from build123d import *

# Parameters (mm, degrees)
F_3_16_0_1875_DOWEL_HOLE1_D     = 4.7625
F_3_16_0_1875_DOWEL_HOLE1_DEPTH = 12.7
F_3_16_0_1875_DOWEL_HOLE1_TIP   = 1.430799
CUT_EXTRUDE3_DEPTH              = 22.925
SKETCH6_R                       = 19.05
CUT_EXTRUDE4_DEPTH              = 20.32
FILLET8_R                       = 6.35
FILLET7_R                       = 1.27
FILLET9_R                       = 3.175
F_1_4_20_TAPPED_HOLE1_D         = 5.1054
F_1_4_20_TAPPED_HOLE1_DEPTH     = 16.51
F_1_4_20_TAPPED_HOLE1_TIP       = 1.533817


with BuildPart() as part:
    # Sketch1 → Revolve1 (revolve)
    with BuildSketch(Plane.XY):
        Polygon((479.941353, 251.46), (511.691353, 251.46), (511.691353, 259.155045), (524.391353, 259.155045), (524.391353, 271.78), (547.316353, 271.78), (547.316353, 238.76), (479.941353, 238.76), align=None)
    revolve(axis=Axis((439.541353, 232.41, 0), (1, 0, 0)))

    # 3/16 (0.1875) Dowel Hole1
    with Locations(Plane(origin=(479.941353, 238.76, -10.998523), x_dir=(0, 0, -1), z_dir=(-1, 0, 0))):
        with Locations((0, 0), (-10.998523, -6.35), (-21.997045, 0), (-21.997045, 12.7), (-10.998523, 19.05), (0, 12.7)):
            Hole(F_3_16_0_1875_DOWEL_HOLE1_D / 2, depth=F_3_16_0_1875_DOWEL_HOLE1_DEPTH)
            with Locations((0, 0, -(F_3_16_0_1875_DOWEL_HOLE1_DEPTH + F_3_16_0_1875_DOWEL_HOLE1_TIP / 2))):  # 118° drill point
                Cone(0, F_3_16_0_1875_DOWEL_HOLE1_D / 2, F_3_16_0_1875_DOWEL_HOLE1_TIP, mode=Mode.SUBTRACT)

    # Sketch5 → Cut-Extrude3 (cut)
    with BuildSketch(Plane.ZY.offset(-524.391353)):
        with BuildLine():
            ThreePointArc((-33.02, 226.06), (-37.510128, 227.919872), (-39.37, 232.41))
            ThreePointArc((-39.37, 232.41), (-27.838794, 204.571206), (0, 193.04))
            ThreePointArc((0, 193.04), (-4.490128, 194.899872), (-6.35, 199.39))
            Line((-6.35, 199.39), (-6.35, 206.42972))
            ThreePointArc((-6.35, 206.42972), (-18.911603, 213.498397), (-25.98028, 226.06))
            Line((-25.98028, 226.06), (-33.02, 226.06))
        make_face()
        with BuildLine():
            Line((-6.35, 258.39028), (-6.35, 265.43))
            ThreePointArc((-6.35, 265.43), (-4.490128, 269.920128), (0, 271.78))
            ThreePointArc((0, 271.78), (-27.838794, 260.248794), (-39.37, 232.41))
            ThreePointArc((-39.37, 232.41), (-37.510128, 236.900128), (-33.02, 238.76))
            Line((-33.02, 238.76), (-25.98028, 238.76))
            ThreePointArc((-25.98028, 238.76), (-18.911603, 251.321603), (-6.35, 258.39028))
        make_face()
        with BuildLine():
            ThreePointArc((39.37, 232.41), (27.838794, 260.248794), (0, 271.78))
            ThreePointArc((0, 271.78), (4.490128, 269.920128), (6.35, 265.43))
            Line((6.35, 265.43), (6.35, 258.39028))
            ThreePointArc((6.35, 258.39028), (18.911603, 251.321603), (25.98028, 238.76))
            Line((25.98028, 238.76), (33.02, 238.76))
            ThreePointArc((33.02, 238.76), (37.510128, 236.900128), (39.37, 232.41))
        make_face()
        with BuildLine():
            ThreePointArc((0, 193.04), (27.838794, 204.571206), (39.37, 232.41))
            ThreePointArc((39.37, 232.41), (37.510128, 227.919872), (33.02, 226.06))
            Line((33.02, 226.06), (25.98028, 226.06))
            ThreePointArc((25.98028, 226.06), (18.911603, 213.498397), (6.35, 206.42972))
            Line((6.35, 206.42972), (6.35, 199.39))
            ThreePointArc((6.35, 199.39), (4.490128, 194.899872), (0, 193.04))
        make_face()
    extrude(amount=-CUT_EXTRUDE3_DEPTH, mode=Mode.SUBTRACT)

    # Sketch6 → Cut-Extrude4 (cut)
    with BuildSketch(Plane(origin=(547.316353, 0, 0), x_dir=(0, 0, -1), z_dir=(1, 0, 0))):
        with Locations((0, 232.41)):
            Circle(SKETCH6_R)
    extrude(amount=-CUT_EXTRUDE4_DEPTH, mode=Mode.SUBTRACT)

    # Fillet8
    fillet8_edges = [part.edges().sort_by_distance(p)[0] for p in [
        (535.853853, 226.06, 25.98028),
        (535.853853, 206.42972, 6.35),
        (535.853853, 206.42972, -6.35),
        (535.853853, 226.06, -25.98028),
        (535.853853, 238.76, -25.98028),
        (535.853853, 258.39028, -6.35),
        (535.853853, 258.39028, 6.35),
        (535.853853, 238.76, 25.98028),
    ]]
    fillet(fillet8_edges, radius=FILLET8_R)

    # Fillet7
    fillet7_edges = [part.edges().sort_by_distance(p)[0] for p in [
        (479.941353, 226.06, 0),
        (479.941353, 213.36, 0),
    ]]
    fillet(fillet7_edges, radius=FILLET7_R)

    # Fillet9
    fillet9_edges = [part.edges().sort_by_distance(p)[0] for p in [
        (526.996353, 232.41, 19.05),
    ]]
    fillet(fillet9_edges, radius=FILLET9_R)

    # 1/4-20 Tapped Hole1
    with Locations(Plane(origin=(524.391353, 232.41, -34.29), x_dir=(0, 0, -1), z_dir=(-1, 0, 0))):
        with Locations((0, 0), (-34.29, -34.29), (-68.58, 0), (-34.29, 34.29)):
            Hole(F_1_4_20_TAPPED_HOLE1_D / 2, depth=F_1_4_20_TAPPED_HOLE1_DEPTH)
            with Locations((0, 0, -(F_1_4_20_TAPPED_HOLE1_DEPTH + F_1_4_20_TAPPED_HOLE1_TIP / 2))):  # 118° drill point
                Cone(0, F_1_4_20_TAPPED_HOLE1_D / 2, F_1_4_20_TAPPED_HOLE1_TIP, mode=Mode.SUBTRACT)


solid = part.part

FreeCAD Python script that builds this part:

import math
import FreeCAD as App
import Part
import Sketcher
from FreeCAD import Vector
Q = App.Units.Quantity


def edges_at(feature, points):
    """Names of the edges that pass closest to the given points."""
    edges = feature.Shape.Edges
    near = lambda p: min(range(len(edges)), key=lambda i: edges[i].distToShape(Part.Vertex(*p))[0])
    return sorted({f"Edge{near(p) + 1}" for p in points})


def add_polygon(sketch, points):
    """Adds a closed chain of lines whose ends are joined by coincident constraints."""
    first, n = sketch.GeometryCount, len(points)
    for a, b in zip(points, points[1:] + points[:1]):
        sketch.addGeometry(Part.LineSegment(App.Vector(*a, 0), App.Vector(*b, 0)), False)
    for i in range(n):
        sketch.addConstraint(Sketcher.Constraint("Coincident", first + i, 2, first + (i + 1) % n, 1))

doc = App.newDocument("Part")
body = doc.addObject("PartDesign::Body", "Body")

# Sketch on XY plane
sketch1 = body.newObject("Sketcher::SketchObject", "Sketch")
sketch1.AttachmentSupport = (doc.getObject("XY_Plane"), [""])
sketch1.MapMode = "FlatFace"
add_polygon(sketch1, [(512, 251), (480, 251), (480, 239), (547, 239), (547, 272), (524, 272), (524, 259), (512, 259)])  # lines 0-7
sketch1.addGeometry(Part.LineSegment(Vector(480, 232, 0), Vector(547, 232, 0)), True)  # axis
sketch1.addConstraint([
    Sketcher.Constraint("Horizontal", 0),
    Sketcher.Constraint("Vertical", 1),
    Sketcher.Constraint("Horizontal", 2),
    Sketcher.Constraint("Vertical", 3),
    Sketcher.Constraint("Horizontal", 4),
    Sketcher.Constraint("Vertical", 5),
    Sketcher.Constraint("Horizontal", 6),
    Sketcher.Constraint("Vertical", 7),
    Sketcher.Constraint("Horizontal", 8),
    Sketcher.Constraint("Vertical", 1, 2, 8, 1),
    Sketcher.Constraint("Vertical", 3, 2, 8, 2),
    Sketcher.Constraint("Equal", 6, 1),
    Sketcher.Constraint("DistanceX", 6, 2, 6, 1, Q("0.5 in")),
    Sketcher.Constraint("DistanceY", 3, 1, 3, 2, Q("1.3 in")),
    Sketcher.Constraint("DistanceX", 0, 2, 0, 1, Q("1.25 in")),
    Sketcher.Constraint("DistanceY", -1, 1, 0, 2, Q("9.9 in")),
    Sketcher.Constraint("DistanceY", -1, 1, 8, 1, Q("9.15 in")),
    Sketcher.Constraint("DistanceX", 2, 1, 2, 2, Q("67.375 mm")),
    Sketcher.Constraint("DistanceY", 5, 2, 5, 1, Q("12.624955 mm")),
    Sketcher.Constraint("DistanceX", -1, 1, 0, 2, Q("479.941353 mm")),
])
revolution = body.newObject("PartDesign::Revolution", "Revolution")
revolution.Profile = sketch1
revolution.ReferenceAxis = (sketch1, ["Axis0"])
revolution.Angle = 360

# Sketch on YZ plane
sketch2 = body.newObject("Sketcher::SketchObject", "Sketch001")
sketch2.AttachmentSupport = (doc.getObject("YZ_Plane"), [""])
sketch2.MapMode = "FlatFace"
sketch2.AttachmentOffset = App.Placement(Vector(0, 0, 479.941353), App.Rotation())
sketch2.addGeometry([
    Part.Circle(Vector(238.8, -11, 0), Vector(0, 0, 1), 2.4),  # 0
    Part.Circle(Vector(245.1, 0, 0), Vector(0, 0, 1), 2.4),  # 1
    Part.Circle(Vector(238.8, 11, 0), Vector(0, 0, 1), 2.4),  # 2
    Part.Circle(Vector(226.1, 11, 0), Vector(0, 0, 1), 2.4),  # 3
    Part.Circle(Vector(219.7, 0, 0), Vector(0, 0, 1), 2.4),  # 4
    Part.Circle(Vector(226.1, -11, 0), Vector(0, 0, 1), 2.4),  # 5
], False)
sketch2.addConstraint([
    Sketcher.Constraint("Equal", 0, 1),
    Sketcher.Constraint("Equal", 1, 2),
    Sketcher.Constraint("Equal", 2, 3),
    Sketcher.Constraint("Equal", 3, 4),
    Sketcher.Constraint("Equal", 4, 5),
    Sketcher.Constraint("Symmetric", 0, 3, 2, 3, -1),
    Sketcher.Constraint("Symmetric", 3, 3, 5, 3, -1),
    Sketcher.Constraint("PointOnObject", 1, 3, -1),
    Sketcher.Constraint("PointOnObject", 4, 3, -1),
    Sketcher.Constraint("Horizontal", 2, 3, 3, 3),
    Sketcher.Constraint("Diameter", 0, Q("0.1875 in")),
    Sketcher.Constraint("DistanceX", 4, 3, 1, 3, Q("1 in")),
    Sketcher.Constraint("DistanceX", -1, 1, 0, 3, Q("9.4 in")),
    Sketcher.Constraint("DistanceX", -1, 1, 3, 3, Q("8.9 in")),
    Sketcher.Constraint("DistanceX", -1, 1, 1, 3, Q("9.65 in")),
    Sketcher.Constraint("DistanceY", 0, 3, -1, 1, Q("10.998523 mm")),
])
doc.recompute()
hole = body.newObject("PartDesign::Hole", "Hole")
hole.Profile = sketch2
hole.ThreadType = "None"
hole.Diameter = Q("0.1875 in")
hole.DepthType = "Dimension"
hole.Depth = Q("0.5 in")
hole.DrillPoint = "Angled"
hole.DrillPointAngle = 118
hole.Reversed = True

# Sketch on YZ plane
sketch3 = body.newObject("Sketcher::SketchObject", "Sketch002")
sketch3.AttachmentSupport = (doc.getObject("YZ_Plane"), [""])
sketch3.MapMode = "FlatFace"
sketch3.AttachmentOffset = App.Placement(Vector(0, 0, 524.391353), App.Rotation())
sketch3.addGeometry([
    Part.ArcOfCircle(Part.Circle(Vector(232, -33, 0), Vector(0, 0, 1), 6), math.radians(-180), math.radians(-90)),  # 0
    Part.ArcOfCircle(Part.Circle(Vector(232, 0, 0), Vector(0, 0, 1), 39), math.radians(180), math.radians(270)),  # 1
    Part.ArcOfCircle(Part.Circle(Vector(199, 0, 0), Vector(0, 0, 1), 6), math.radians(-180), math.radians(-90)),  # 2
    Part.LineSegment(Vector(199, -6, 0), Vector(206, -6, 0)),  # 3
    Part.ArcOfCircle(Part.Circle(Vector(232, 0, 0), Vector(0, 0, 1), 27), math.radians(-166), math.radians(-104)),  # 4
    Part.LineSegment(Vector(226, -26, 0), Vector(226, -33, 0)),  # 5
    Part.LineSegment(Vector(258, -6, 0), Vector(265, -6, 0)),  # 6
    Part.ArcOfCircle(Part.Circle(Vector(265, 0, 0), Vector(0, 0, 1), 6), math.radians(-90), math.radians(0)),  # 7
    Part.ArcOfCircle(Part.Circle(Vector(232, 0, 0), Vector(0, 0, 1), 39), math.radians(-90), math.radians(0)),  # 8
    Part.ArcOfCircle(Part.Circle(Vector(232, -33, 0), Vector(0, 0, 1), 6), math.radians(-90), math.radians(0)),  # 9
    Part.LineSegment(Vector(239, -33, 0), Vector(239, -26, 0)),  # 10
    Part.ArcOfCircle(Part.Circle(Vector(232, 0, 0), Vector(0, 0, 1), 27), math.radians(-76), math.radians(-14)),  # 11
    Part.ArcOfCircle(Part.Circle(Vector(232, 0, 0), Vector(0, 0, 1), 39), math.radians(0), math.radians(90)),  # 12
    Part.ArcOfCircle(Part.Circle(Vector(265, 0, 0), Vector(0, 0, 1), 6), math.radians(0), math.radians(90)),  # 13
    Part.LineSegment(Vector(265, 6, 0), Vector(258, 6, 0)),  # 14
    Part.ArcOfCircle(Part.Circle(Vector(232, 0, 0), Vector(0, 0, 1), 27), math.radians(14), math.radians(76)),  # 15
    Part.LineSegment(Vector(239, 26, 0), Vector(239, 33, 0)),  # 16
    Part.ArcOfCircle(Part.Circle(Vector(232, 33, 0), Vector(0, 0, 1), 6), math.radians(0), math.radians(90)),  # 17
    Part.ArcOfCircle(Part.Circle(Vector(232, 0, 0), Vector(0, 0, 1), 39), math.radians(90), math.radians(180)),  # 18
    Part.ArcOfCircle(Part.Circle(Vector(232, 33, 0), Vector(0, 0, 1), 6), math.radians(90), math.radians(180)),  # 19
    Part.LineSegment(Vector(226, 33, 0), Vector(226, 26, 0)),  # 20
    Part.ArcOfCircle(Part.Circle(Vector(232, 0, 0), Vector(0, 0, 1), 27), math.radians(104), math.radians(166)),  # 21
    Part.LineSegment(Vector(206, 6, 0), Vector(199, 6, 0)),  # 22
    Part.ArcOfCircle(Part.Circle(Vector(199, 0, 0), Vector(0, 0, 1), 6), math.radians(90), math.radians(180)),  # 23
], False)
sketch3.addConstraint([
    Sketcher.Constraint("Tangent", 0, 2, 1, 2),
    Sketcher.Constraint("Tangent", 1, 1, 2, 1),
    Sketcher.Constraint("Tangent", 2, 2, 3, 1),
    Sketcher.Constraint("Coincident", 3, 2, 4, 1),
    Sketcher.Constraint("Coincident", 4, 2, 5, 1),
    Sketcher.Constraint("Tangent", 5, 2, 0, 1),
    Sketcher.Constraint("Tangent", 6, 2, 7, 1),
    Sketcher.Constraint("Tangent", 7, 2, 8, 2),
    Sketcher.Constraint("Tangent", 8, 1, 9, 1),
    Sketcher.Constraint("Tangent", 9, 2, 10, 1),
    Sketcher.Constraint("Coincident", 10, 2, 11, 1),
    Sketcher.Constraint("Coincident", 11, 2, 6, 1),
    Sketcher.Constraint("Tangent", 12, 1, 13, 1),
    Sketcher.Constraint("Tangent", 13, 2, 14, 1),
    Sketcher.Constraint("Coincident", 14, 2, 15, 1),
    Sketcher.Constraint("Coincident", 15, 2, 16, 1),
    Sketcher.Constraint("Tangent", 16, 2, 17, 1),
    Sketcher.Constraint("Tangent", 17, 2, 12, 2),
    Sketcher.Constraint("Tangent", 18, 1, 19, 1),
    Sketcher.Constraint("Tangent", 19, 2, 20, 1),
    Sketcher.Constraint("Coincident", 20, 2, 21, 1),
    Sketcher.Constraint("Coincident", 21, 2, 22, 1),
    Sketcher.Constraint("Tangent", 22, 2, 23, 1),
    Sketcher.Constraint("Tangent", 23, 2, 18, 2),
    Sketcher.Constraint("Horizontal", 3),
    Sketcher.Constraint("Vertical", 5),
    Sketcher.Constraint("Horizontal", 6),
    Sketcher.Constraint("Vertical", 10),
    Sketcher.Constraint("Horizontal", 14),
    Sketcher.Constraint("Vertical", 16),
    Sketcher.Constraint("Vertical", 20),
    Sketcher.Constraint("Horizontal", 22),
    Sketcher.Constraint("Coincident", 4, 3, 1, 3),
    Sketcher.Constraint("Coincident", 8, 3, 1, 3),
    Sketcher.Constraint("Coincident", 9, 3, 0, 3),
    Sketcher.Constraint("Coincident", 11, 3, 1, 3),
    Sketcher.Constraint("Coincident", 12, 3, 1, 3),
    Sketcher.Constraint("Coincident", 13, 3, 7, 3),
    Sketcher.Constraint("Coincident", 15, 3, 1, 3),
    Sketcher.Constraint("Coincident", 18, 3, 1, 3),
    Sketcher.Constraint("Coincident", 19, 3, 17, 3),
    Sketcher.Constraint("Coincident", 21, 3, 1, 3),
    Sketcher.Constraint("Coincident", 23, 3, 2, 3),
    Sketcher.Constraint("Equal", 0, 2),
    Sketcher.Constraint("Equal", 2, 7),
    Sketcher.Constraint("Equal", 1, 8),
    Sketcher.Constraint("Equal", 4, 11),
    Sketcher.Constraint("Equal", 8, 12),
    Sketcher.Constraint("Equal", 11, 15),
    Sketcher.Constraint("Equal", 13, 17),
    Sketcher.Constraint("Equal", 12, 18),
    Sketcher.Constraint("Equal", 15, 21),
    Sketcher.Constraint("Symmetric", 0, 3, 17, 3, -1),
    Sketcher.Constraint("PointOnObject", 2, 3, -1),
    Sketcher.Constraint("PointOnObject", 7, 3, -1),
    Sketcher.Constraint("Horizontal", 4, 2, 10, 2),
    Sketcher.Constraint("Radius", 0, Q("0.25 in")),
    Sketcher.Constraint("Radius", 1, Q("1.55 in")),
    Sketcher.Constraint("DistanceX", -1, 1, 1, 1, Q("7.6 in")),
    Sketcher.Constraint("Radius", 4, Q("26.745045 mm")),
])
pocket1 = body.newObject("PartDesign::Pocket", "Pocket")
pocket1.Profile = sketch3
pocket1.Length = 22.925
pocket1.Reversed = True

# Sketch on YZ plane
sketch4 = body.newObject("Sketcher::SketchObject", "Sketch003")
sketch4.AttachmentSupport = (doc.getObject("YZ_Plane"), [""])
sketch4.MapMode = "FlatFace"
sketch4.AttachmentOffset = App.Placement(Vector(0, 0, 547.316353), App.Rotation())
sketch4.addGeometry(Part.Circle(Vector(232, 0, 0), Vector(0, 0, 1), 19), False)
sketch4.addConstraint([
    Sketcher.Constraint("PointOnObject", 0, 3, -1),
    Sketcher.Constraint("Diameter", 0, Q("1.5 in")),
    Sketcher.Constraint("DistanceX", -1, 1, 0, 3, Q("9.15 in")),
])
pocket2 = body.newObject("PartDesign::Pocket", "Pocket001")
pocket2.Profile = sketch4
pocket2.Length = Q("0.8 in")
doc.recompute()

fillet = body.newObject("PartDesign::Fillet", "Fillet")
fillet.Base = (pocket2, edges_at(pocket2, [
    (535.854, 226.06, 25.98),
    (535.854, 206.43, 6.35),
    (535.854, 206.43, -6.35),
    (535.854, 226.06, -25.98),
    (535.854, 238.76, -25.98),
    (535.854, 258.39, -6.35),
    (535.854, 258.39, 6.35),
    (535.854, 238.76, 25.98),
]))
fillet.Radius = Q("0.25 in")
doc.recompute()

fillet2 = body.newObject("PartDesign::Fillet", "Fillet001")
fillet2.Base = (fillet, edges_at(fillet, [(479.941, 226.06, 0), (479.941, 213.36, 0)]))
fillet2.Radius = Q("0.05 in")
doc.recompute()

fillet3 = body.newObject("PartDesign::Fillet", "Fillet002")
fillet3.Base = (fillet2, edges_at(fillet2, [(526.996, 232.41, 19.05)]))
fillet3.Radius = Q("0.125 in")

# Sketch on YZ plane
sketch5 = body.newObject("Sketcher::SketchObject", "Sketch004")
sketch5.AttachmentSupport = (doc.getObject("YZ_Plane"), [""])
sketch5.MapMode = "FlatFace"
sketch5.AttachmentOffset = App.Placement(Vector(0, 0, 524.391353), App.Rotation())
sketch5.addGeometry([
    Part.Circle(Vector(232.4, -34.3, 0), Vector(0, 0, 1), 2.6),
    Part.Circle(Vector(266.7, 0, 0), Vector(0, 0, 1), 2.6),
    Part.Circle(Vector(232.4, 34.3, 0), Vector(0, 0, 1), 2.6),
    Part.Circle(Vector(198.1, 0, 0), Vector(0, 0, 1), 2.6),
], False)
sketch5.addConstraint([
    Sketcher.Constraint("Equal", 0, 1),
    Sketcher.Constraint("Equal", 1, 2),
    Sketcher.Constraint("Equal", 2, 3),
    Sketcher.Constraint("Symmetric", 0, 3, 2, 3, -1),
    Sketcher.Constraint("PointOnObject", 1, 3, -1),
    Sketcher.Constraint("PointOnObject", 3, 3, -1),
    Sketcher.Constraint("Diameter", 0, Q("0.201 in")),
    Sketcher.Constraint("DistanceX", -1, 1, 1, 3, Q("10.5 in")),
    Sketcher.Constraint("DistanceX", -1, 1, 3, 3, Q("7.8 in")),
    Sketcher.Constraint("DistanceY", 0, 3, 2, 3, Q("2.7 in")),
    Sketcher.Constraint("DistanceX", -1, 1, 0, 3, Q("9.15 in")),
])
doc.recompute()
hole2 = body.newObject("PartDesign::Hole", "Hole001")
hole2.Profile = sketch5
hole2.ThreadType = "None"
hole2.Diameter = Q("0.201 in")
hole2.DepthType = "Dimension"
hole2.Depth = Q("0.65 in")
hole2.DrillPoint = "Angled"
hole2.DrillPointAngle = 118
hole2.Reversed = True

doc.recompute()
